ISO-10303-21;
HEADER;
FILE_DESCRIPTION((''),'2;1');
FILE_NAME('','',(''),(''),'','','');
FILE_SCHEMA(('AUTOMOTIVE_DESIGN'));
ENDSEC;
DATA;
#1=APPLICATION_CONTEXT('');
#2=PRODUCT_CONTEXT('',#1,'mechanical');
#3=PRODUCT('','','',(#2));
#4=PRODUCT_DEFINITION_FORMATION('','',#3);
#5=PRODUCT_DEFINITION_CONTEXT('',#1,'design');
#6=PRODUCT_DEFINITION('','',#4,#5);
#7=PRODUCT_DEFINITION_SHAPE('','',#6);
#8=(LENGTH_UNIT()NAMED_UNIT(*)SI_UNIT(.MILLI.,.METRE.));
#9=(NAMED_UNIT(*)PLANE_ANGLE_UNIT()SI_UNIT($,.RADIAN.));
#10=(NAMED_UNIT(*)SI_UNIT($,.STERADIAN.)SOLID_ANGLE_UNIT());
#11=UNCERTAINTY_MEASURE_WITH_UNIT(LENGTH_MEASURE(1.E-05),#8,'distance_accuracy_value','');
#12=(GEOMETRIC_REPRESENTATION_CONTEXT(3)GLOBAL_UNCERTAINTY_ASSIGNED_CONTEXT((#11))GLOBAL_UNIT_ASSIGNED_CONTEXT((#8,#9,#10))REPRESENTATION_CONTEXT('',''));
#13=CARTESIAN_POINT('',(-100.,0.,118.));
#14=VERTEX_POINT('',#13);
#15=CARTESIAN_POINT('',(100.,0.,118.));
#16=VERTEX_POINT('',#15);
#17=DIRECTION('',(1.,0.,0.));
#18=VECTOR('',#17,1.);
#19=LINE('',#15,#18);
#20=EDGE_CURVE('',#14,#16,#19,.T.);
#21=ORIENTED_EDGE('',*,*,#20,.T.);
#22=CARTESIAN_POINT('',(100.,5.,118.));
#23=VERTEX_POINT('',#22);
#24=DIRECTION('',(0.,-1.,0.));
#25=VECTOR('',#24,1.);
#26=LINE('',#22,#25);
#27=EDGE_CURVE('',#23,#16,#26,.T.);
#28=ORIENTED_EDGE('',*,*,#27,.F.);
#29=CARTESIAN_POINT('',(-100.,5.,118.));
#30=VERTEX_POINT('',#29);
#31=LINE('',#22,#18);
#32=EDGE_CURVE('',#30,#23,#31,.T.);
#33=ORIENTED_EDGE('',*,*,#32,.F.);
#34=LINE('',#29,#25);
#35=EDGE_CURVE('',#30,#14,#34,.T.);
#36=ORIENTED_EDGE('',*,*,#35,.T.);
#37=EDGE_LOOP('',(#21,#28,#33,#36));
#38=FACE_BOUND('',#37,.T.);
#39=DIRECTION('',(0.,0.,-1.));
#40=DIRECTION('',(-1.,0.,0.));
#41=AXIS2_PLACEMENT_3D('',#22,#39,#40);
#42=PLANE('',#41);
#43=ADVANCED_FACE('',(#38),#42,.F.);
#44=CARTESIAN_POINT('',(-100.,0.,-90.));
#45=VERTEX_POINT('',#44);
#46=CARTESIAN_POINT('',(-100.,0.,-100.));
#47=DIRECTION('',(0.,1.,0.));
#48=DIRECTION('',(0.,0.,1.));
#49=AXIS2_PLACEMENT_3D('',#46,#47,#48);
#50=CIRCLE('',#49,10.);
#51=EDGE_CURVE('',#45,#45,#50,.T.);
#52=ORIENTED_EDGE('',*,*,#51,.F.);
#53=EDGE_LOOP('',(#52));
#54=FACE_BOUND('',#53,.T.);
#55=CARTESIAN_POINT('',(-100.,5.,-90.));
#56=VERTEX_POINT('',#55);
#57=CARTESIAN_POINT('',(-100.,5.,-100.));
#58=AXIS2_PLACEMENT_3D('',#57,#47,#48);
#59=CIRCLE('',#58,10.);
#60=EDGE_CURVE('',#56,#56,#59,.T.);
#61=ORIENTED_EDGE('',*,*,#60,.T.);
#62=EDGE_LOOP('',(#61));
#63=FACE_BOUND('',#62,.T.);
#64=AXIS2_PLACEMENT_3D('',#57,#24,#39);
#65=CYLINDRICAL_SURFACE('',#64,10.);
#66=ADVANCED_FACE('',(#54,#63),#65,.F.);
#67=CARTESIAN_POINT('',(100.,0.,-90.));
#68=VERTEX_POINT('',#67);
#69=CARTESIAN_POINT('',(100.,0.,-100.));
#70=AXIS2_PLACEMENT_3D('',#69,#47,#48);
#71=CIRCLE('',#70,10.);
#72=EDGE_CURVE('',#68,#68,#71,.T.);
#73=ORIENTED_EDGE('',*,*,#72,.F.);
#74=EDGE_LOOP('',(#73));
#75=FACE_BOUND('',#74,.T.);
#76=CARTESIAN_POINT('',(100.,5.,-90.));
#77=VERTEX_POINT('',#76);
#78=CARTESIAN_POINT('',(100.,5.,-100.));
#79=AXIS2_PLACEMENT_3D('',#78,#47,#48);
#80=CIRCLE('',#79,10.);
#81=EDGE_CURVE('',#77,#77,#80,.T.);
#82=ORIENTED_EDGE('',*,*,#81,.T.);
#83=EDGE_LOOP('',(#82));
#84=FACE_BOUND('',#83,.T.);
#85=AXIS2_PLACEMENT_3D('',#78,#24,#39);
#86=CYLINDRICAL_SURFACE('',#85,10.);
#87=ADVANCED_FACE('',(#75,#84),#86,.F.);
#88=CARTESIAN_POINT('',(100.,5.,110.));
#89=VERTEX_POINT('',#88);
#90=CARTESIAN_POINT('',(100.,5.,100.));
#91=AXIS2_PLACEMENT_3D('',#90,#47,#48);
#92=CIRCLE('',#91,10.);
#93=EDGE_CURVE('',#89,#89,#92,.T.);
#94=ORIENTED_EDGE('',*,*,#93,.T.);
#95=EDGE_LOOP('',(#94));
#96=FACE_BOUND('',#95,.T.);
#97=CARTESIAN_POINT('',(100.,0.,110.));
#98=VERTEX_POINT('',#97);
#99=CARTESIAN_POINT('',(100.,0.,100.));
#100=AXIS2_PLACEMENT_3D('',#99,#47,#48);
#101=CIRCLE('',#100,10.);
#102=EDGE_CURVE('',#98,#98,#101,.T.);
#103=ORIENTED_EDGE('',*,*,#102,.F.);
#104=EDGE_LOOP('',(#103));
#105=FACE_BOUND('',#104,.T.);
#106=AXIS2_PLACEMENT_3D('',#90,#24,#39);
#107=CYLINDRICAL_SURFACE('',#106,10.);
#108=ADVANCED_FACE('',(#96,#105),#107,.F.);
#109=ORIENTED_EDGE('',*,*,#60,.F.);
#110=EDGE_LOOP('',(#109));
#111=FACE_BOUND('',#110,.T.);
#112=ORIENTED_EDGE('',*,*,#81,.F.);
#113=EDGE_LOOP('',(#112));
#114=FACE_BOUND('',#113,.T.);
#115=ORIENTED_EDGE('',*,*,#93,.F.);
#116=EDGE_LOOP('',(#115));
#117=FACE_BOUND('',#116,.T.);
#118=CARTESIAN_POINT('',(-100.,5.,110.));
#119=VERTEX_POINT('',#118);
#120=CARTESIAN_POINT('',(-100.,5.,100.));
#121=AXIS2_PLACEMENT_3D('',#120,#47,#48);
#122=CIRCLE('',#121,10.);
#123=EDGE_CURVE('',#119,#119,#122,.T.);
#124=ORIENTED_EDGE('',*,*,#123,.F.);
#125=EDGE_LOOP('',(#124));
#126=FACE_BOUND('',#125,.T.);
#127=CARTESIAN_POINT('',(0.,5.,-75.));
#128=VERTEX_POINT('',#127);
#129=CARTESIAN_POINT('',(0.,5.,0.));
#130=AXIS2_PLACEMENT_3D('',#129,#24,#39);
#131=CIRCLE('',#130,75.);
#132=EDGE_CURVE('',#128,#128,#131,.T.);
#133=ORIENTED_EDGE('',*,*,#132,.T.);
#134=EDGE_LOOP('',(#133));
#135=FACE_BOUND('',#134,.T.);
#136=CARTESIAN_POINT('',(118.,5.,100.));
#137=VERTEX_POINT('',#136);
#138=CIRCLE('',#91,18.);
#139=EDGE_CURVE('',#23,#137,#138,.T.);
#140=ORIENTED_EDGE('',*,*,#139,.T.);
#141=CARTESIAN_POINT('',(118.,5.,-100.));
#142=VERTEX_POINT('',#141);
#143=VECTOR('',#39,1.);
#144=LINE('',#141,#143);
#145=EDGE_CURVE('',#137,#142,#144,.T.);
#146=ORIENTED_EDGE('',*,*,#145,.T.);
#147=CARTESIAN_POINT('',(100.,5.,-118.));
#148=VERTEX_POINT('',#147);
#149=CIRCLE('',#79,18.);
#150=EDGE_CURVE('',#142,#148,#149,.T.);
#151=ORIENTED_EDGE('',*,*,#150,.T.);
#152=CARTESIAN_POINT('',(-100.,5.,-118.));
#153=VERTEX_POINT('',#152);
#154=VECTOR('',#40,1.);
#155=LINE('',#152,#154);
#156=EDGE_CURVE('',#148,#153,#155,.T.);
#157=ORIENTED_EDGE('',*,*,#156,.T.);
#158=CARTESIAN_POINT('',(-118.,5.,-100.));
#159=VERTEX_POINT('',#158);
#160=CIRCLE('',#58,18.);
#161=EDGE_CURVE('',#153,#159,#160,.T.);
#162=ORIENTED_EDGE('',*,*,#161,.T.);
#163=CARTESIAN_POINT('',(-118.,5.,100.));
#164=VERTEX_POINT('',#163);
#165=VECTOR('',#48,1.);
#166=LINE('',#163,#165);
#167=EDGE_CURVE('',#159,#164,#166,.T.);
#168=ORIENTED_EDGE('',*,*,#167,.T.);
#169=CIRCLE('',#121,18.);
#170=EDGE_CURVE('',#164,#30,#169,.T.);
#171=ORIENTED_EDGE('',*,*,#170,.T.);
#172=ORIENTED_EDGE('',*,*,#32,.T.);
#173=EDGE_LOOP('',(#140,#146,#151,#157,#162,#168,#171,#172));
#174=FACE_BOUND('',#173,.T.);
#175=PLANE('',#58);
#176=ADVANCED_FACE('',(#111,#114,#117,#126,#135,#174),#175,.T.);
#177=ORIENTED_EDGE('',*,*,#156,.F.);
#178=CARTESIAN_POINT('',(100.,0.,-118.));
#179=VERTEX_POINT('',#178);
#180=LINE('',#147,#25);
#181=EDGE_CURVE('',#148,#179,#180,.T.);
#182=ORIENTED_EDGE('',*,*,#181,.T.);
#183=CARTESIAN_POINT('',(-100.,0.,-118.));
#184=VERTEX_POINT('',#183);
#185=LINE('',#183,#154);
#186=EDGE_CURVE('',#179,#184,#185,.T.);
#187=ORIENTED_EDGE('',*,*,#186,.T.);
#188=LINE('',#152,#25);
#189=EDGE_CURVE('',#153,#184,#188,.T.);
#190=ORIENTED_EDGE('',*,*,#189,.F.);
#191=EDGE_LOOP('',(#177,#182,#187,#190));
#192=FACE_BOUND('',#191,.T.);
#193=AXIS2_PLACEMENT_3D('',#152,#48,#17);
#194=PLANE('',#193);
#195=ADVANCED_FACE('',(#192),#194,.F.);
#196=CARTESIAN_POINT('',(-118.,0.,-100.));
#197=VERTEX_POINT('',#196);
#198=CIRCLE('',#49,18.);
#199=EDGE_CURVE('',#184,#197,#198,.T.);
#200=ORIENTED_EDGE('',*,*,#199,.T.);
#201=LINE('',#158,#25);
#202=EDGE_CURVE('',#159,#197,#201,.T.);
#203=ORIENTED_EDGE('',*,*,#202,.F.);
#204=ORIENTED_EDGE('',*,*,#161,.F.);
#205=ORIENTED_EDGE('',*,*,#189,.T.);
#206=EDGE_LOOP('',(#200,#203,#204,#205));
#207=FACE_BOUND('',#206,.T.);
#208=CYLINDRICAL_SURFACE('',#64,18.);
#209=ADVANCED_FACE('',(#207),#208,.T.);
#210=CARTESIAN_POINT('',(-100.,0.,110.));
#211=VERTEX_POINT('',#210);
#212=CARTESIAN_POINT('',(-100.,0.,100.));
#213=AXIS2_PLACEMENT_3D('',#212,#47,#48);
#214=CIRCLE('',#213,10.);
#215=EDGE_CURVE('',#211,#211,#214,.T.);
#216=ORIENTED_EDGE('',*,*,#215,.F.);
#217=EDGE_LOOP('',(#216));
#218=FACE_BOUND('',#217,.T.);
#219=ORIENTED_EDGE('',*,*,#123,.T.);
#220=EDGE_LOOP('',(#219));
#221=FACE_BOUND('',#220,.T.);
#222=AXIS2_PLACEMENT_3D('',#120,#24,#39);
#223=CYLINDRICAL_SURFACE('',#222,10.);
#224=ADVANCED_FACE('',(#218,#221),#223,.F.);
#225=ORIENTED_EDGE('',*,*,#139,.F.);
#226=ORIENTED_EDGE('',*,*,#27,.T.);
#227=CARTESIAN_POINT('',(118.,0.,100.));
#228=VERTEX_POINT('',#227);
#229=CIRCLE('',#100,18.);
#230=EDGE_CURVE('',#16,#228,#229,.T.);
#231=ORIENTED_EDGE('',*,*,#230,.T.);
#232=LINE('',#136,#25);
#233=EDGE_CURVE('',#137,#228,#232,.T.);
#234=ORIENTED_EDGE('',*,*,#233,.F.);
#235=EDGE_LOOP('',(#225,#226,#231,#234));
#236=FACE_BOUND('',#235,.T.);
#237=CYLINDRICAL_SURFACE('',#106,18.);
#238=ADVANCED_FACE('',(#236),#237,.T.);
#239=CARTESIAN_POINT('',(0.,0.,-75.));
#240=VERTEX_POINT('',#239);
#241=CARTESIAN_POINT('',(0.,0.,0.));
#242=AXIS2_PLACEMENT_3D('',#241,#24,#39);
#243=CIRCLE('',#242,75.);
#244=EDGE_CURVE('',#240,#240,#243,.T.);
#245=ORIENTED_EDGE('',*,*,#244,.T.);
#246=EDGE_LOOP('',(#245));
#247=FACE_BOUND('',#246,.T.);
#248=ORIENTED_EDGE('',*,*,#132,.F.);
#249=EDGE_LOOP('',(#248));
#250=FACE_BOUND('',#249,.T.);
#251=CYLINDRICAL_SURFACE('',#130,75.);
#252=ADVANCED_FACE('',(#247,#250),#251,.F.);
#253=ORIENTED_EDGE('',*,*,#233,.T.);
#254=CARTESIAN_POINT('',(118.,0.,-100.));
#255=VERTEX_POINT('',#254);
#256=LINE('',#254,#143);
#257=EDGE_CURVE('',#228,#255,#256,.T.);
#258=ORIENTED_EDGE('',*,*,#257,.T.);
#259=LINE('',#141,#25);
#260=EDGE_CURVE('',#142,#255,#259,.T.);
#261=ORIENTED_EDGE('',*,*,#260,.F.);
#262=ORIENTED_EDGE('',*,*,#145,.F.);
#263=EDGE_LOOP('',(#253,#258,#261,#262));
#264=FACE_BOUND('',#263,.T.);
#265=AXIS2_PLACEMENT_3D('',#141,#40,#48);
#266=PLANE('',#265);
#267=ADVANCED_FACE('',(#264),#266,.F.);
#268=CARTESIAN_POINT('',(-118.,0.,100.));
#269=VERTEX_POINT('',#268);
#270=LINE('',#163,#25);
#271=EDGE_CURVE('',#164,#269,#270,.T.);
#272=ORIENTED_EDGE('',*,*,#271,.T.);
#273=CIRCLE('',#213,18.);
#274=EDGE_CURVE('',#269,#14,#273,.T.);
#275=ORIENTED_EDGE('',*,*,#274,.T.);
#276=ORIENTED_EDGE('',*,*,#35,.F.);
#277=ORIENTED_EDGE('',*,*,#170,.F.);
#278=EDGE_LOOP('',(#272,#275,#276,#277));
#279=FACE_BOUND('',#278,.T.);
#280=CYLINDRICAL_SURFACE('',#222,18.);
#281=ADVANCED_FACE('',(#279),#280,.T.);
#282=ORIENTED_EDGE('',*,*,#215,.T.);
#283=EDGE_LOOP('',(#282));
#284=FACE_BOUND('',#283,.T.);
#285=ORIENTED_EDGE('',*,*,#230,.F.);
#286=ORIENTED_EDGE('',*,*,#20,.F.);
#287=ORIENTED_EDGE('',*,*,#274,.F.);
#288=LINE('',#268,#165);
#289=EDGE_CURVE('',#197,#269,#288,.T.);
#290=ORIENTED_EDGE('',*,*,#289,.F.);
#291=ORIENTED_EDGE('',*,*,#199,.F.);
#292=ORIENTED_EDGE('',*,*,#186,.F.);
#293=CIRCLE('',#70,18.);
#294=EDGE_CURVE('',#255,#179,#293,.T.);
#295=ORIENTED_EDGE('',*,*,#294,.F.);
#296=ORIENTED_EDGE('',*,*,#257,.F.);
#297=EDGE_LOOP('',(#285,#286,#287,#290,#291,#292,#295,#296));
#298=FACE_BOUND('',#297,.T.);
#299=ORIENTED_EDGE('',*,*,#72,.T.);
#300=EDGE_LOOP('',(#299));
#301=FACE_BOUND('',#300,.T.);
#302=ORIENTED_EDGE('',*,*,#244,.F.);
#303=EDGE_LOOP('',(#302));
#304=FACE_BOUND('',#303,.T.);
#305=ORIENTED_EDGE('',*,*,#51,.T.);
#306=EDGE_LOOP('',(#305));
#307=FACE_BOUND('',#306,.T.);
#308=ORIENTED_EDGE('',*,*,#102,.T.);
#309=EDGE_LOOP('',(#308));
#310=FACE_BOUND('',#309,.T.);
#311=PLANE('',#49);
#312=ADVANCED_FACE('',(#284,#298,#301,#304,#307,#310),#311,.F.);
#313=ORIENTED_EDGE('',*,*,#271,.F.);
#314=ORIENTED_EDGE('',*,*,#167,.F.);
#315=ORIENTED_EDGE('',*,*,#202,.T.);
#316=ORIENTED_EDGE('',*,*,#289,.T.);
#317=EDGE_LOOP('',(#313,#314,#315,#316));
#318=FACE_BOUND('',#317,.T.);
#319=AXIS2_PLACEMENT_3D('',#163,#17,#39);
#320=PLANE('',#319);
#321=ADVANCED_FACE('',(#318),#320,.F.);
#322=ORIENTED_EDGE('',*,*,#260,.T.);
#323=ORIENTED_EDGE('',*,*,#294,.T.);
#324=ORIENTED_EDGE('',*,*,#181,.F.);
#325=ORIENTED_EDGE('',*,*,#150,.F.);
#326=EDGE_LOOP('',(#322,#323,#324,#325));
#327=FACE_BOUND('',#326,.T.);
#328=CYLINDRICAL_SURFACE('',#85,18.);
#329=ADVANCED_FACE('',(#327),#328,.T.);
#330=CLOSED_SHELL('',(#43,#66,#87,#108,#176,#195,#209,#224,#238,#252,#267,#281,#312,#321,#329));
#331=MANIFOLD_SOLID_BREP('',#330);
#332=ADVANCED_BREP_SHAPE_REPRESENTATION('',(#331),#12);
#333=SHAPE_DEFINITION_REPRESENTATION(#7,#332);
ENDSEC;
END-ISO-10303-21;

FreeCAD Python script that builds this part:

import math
import FreeCAD as App
import Part
import Sketcher

V = App.Vector

doc = App.newDocument("Part")
body = doc.addObject("PartDesign::Body", "Body")

# Sketch on XZ plane
sketch1 = doc.addObject("Sketcher::SketchObject", "Sketch")
body.addObject(sketch1)
sketch1.AttachmentSupport = (doc.XZ_Plane, [""])
sketch1.MapMode = "FlatFace"
sketch1.addGeometry([
    Part.LineSegment(V(100, -118, 0), V(-100, -118, 0)),  # 0
    Part.ArcOfCircle(Part.Circle(V(-100, -100, 0), V(0, 0, 1), 18), math.radians(-180), math.radians(-90)),  # 1
    Part.LineSegment(V(-118, -100, 0), V(-118, 100, 0)),  # 2
    Part.ArcOfCircle(Part.Circle(V(-100, 100, 0), V(0, 0, 1), 18), math.radians(90), math.radians(180)),  # 3
    Part.LineSegment(V(-100, 118, 0), V(100, 118, 0)),  # 4
    Part.ArcOfCircle(Part.Circle(V(100, 100, 0), V(0, 0, 1), 18), math.radians(0), math.radians(90)),  # 5
    Part.LineSegment(V(118, 100, 0), V(118, -100, 0)),  # 6
    Part.ArcOfCircle(Part.Circle(V(100, -100, 0), V(0, 0, 1), 18), math.radians(-90), math.radians(0)),  # 7
    Part.Circle(V(100, 100, 0), V(0, 0, 1), 10),  # 8
    Part.Circle(V(-100, 100, 0), V(0, 0, 1), 10),  # 9
    Part.Circle(V(100, -100, 0), V(0, 0, 1), 10),  # 10
    Part.Circle(V(-100, -100, 0), V(0, 0, 1), 10),  # 11
], False)
sketch1.addConstraint([
    Sketcher.Constraint("Tangent", 0, 2, 1, 2),
    Sketcher.Constraint("Tangent", 1, 1, 2, 1),
    Sketcher.Constraint("Tangent", 2, 2, 3, 2),
    Sketcher.Constraint("Tangent", 3, 1, 4, 1),
    Sketcher.Constraint("Tangent", 4, 2, 5, 2),
    Sketcher.Constraint("Tangent", 5, 1, 6, 1),
    Sketcher.Constraint("Tangent", 6, 2, 7, 2),
    Sketcher.Constraint("Tangent", 7, 1, 0, 1),
    Sketcher.Constraint("Horizontal", 0),
    Sketcher.Constraint("Vertical", 2),
    Sketcher.Constraint("Horizontal", 4),
    Sketcher.Constraint("Vertical", 6),
    Sketcher.Constraint("Coincident", 8, 3, 5, 3),
    Sketcher.Constraint("Coincident", 9, 3, 3, 3),
    Sketcher.Constraint("Coincident", 10, 3, 7, 3),
    Sketcher.Constraint("Coincident", 11, 3, 1, 3),
    Sketcher.Constraint("Equal", 1, 3),
    Sketcher.Constraint("Equal", 3, 5),
    Sketcher.Constraint("Equal", 5, 7),
    Sketcher.Constraint("Equal", 8, 9),
    Sketcher.Constraint("Equal", 9, 10),
    Sketcher.Constraint("Equal", 10, 11),
    Sketcher.Constraint("Symmetric", 1, 3, 5, 3, -1, 1),
    Sketcher.Constraint("Equal", 4, 2),
    Sketcher.Constraint("Diameter", 8, 20.0),
    Sketcher.Constraint("Radius", 1, 18.0),
    Sketcher.Constraint("DistanceX", 0, 2, 0, 1, 200.0),
])
pad1 = doc.addObject("PartDesign::Pad", "Pad")
body.addObject(pad1)
pad1.Profile = sketch1
pad1.Length = 5
pad1.Reversed = True

# Sketch on XZ plane
sketch2 = doc.addObject("Sketcher::SketchObject", "Sketch001")
body.addObject(sketch2)
sketch2.AttachmentSupport = (doc.XZ_Plane, [""])
sketch2.MapMode = "FlatFace"
sketch2.addGeometry(Part.Circle(V(0, 0, 0), V(0, 0, 1), 75), False)
sketch2.addConstraint([
    Sketcher.Constraint("Coincident", 0, 3, -1, 1),
    Sketcher.Constraint("Diameter", 0, 150.0),
])
pocket1 = doc.addObject("PartDesign::Pocket", "Pocket")
body.addObject(pocket1)
pocket1.Profile = sketch2
pocket1.Type = "ThroughAll"

doc.recompute()
